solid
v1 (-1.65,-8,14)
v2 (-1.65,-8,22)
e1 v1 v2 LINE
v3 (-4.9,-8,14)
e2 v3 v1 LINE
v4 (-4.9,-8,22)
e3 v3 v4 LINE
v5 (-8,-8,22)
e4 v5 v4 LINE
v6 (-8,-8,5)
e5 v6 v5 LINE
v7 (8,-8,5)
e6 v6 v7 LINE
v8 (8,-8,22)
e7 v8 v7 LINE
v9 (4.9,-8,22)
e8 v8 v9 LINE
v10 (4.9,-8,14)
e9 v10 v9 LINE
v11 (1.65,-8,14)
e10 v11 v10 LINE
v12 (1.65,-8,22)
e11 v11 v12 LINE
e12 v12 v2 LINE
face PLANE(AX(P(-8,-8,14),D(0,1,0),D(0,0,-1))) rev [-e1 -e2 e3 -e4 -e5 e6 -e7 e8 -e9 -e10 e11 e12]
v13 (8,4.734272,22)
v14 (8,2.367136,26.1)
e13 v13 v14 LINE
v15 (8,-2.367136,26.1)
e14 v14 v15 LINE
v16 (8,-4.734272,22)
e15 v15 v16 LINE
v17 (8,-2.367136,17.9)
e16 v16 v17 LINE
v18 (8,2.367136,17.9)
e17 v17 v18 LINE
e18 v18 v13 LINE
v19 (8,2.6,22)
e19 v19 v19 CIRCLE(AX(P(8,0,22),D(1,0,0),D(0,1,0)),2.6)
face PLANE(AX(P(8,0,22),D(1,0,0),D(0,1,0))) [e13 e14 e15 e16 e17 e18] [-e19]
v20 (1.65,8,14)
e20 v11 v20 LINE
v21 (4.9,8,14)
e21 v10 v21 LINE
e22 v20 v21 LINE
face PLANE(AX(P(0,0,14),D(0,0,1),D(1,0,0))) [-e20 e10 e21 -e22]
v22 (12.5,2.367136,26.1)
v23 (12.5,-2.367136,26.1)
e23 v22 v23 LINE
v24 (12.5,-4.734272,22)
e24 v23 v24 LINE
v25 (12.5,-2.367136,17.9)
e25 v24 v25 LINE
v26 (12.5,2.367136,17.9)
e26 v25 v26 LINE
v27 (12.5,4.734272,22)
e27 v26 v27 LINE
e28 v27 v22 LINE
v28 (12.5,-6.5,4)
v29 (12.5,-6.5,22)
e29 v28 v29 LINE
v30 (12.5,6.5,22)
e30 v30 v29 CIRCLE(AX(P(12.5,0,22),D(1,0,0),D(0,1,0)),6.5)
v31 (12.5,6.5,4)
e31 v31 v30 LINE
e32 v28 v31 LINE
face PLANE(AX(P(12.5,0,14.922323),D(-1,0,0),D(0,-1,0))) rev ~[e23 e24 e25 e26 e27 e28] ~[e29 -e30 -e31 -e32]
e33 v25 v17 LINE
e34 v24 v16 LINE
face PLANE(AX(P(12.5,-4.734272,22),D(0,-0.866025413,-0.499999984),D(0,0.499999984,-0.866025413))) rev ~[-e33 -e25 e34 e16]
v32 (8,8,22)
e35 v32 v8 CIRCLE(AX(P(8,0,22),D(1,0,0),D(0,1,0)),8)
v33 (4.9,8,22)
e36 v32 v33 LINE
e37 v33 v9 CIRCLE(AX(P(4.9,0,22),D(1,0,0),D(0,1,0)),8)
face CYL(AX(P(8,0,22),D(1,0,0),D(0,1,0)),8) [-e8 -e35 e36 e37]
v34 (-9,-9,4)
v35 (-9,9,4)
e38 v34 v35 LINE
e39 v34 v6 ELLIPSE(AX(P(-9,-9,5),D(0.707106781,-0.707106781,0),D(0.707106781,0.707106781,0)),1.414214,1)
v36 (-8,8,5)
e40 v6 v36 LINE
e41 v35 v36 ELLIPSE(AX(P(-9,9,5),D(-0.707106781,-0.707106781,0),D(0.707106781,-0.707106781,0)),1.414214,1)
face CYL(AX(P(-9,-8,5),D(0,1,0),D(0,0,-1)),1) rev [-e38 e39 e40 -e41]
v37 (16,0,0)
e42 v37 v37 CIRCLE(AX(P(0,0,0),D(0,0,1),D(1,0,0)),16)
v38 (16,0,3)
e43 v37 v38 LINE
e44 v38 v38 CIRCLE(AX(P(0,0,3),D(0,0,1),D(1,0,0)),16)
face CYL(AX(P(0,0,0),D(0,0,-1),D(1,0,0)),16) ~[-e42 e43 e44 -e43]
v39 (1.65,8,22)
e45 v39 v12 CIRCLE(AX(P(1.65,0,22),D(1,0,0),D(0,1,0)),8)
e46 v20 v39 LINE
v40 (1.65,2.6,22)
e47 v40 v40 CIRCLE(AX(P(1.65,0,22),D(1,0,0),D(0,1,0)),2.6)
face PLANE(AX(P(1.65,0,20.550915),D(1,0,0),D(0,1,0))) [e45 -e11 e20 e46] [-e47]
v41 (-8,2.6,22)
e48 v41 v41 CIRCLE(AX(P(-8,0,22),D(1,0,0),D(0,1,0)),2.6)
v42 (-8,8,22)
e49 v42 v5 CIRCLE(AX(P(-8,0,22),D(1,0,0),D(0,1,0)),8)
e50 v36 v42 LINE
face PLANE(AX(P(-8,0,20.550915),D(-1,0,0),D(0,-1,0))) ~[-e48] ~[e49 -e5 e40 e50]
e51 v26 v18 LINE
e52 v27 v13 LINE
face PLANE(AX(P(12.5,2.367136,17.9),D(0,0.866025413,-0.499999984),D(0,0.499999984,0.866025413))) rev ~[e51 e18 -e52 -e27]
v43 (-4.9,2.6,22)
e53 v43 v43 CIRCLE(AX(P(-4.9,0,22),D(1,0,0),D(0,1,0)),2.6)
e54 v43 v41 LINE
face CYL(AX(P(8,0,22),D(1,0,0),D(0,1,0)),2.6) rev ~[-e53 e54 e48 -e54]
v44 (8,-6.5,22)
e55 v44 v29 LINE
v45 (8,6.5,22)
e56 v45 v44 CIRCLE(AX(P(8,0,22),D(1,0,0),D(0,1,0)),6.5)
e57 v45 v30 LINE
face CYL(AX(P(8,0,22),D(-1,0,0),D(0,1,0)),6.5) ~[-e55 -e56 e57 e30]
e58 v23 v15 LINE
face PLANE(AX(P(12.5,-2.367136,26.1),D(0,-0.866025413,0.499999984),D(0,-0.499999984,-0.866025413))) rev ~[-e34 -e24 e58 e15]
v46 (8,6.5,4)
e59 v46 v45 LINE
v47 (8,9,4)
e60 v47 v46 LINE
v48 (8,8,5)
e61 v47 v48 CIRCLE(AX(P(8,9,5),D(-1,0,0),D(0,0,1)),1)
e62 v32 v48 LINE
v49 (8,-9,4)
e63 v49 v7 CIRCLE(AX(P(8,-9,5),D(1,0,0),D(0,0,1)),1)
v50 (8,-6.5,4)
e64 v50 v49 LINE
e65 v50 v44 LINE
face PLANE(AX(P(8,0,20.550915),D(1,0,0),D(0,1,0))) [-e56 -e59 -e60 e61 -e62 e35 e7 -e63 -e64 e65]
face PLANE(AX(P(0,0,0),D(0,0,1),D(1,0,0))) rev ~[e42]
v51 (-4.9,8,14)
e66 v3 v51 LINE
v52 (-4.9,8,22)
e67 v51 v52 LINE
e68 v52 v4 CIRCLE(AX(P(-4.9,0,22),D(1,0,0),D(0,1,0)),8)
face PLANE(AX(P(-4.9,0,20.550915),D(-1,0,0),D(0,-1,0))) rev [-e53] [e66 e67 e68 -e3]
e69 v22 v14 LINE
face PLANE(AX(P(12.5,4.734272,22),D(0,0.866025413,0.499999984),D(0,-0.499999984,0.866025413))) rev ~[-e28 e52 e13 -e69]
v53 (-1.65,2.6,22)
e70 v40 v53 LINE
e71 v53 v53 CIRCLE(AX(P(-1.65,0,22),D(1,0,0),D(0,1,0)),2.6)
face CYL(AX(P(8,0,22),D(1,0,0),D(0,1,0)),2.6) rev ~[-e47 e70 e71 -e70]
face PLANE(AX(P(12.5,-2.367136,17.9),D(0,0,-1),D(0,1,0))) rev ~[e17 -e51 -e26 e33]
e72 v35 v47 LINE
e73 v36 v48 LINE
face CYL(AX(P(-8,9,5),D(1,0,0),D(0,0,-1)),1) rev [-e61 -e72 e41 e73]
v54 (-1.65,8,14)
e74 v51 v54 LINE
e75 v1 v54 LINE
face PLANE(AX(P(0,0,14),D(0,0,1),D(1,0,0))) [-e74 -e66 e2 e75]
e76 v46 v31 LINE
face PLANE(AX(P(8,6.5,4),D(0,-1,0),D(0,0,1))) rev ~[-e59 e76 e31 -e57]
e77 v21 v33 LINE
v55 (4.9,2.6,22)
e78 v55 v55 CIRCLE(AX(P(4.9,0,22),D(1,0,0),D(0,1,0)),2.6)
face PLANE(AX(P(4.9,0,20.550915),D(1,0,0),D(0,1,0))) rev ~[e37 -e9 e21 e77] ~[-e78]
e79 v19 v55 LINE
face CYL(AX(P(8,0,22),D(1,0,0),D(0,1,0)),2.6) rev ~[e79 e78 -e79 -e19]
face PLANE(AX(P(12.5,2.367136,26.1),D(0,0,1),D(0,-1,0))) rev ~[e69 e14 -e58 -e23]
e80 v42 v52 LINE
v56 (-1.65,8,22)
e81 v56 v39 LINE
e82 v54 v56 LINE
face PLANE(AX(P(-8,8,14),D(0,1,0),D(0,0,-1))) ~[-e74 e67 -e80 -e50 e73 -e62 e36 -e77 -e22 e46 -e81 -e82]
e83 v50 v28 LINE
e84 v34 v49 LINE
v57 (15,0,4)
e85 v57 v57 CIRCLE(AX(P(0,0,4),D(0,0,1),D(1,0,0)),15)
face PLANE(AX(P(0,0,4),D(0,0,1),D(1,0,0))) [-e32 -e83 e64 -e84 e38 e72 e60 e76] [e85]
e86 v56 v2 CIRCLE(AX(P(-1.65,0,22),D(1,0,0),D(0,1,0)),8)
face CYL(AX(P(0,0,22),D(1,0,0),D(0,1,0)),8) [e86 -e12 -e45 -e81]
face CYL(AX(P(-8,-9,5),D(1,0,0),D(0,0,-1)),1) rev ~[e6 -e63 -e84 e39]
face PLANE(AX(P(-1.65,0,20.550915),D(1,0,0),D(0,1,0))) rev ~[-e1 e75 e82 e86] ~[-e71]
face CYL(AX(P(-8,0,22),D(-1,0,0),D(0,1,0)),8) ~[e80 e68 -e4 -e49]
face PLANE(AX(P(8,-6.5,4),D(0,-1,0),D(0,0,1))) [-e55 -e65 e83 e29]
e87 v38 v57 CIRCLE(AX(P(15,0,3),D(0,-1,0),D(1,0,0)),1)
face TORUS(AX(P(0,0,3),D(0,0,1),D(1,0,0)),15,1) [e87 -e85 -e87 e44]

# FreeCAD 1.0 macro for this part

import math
import FreeCAD as App
import Part
import Sketcher
from FreeCAD import Vector
Q = App.Units.Quantity


def edges_at(feature, points):
    """Names of the edges that pass closest to the given points."""
    edges = feature.Shape.Edges
    near = lambda p: min(range(len(edges)), key=lambda i: edges[i].distToShape(Part.Vertex(*p))[0])
    return sorted({f"Edge{near(p) + 1}" for p in points})


def add_polygon(sketch, points):
    """Adds a closed chain of lines whose ends are joined by coincident constraints."""
    first, n = sketch.GeometryCount, len(points)
    for a, b in zip(points, points[1:] + points[:1]):
        sketch.addGeometry(Part.LineSegment(App.Vector(*a, 0), App.Vector(*b, 0)), False)
    for i in range(n):
        sketch.addConstraint(Sketcher.Constraint("Coincident", first + i, 2, first + (i + 1) % n, 1))

doc = App.newDocument("Part")
body = doc.addObject("PartDesign::Body", "Body")

# Sketch on XY plane
sketch1 = body.newObject("Sketcher::SketchObject", "Sketch")
sketch1.AttachmentSupport = (doc.getObject("XY_Plane"), [""])
sketch1.MapMode = "FlatFace"
sketch1.addGeometry(Part.Circle(Vector(0, 0, 0), Vector(0, 0, 1), 16), False)
sketch1.addConstraint([
    Sketcher.Constraint("Coincident", 0, 3, -1, 1),
    Sketcher.Constraint("Diameter", 0, 32.0),
])
pad1 = body.newObject("PartDesign::Pad", "Pad")
pad1.Profile = sketch1
pad1.Length = 4
doc.recompute()

fillet = body.newObject("PartDesign::Fillet", "Fillet")
fillet.Base = (pad1, edges_at(pad1, [(-16, 0, 4)]))
fillet.Radius = 1

# Sketch on XY plane
sketch2 = body.newObject("Sketcher::SketchObject", "Sketch001")
sketch2.AttachmentSupport = (doc.getObject("XY_Plane"), [""])
sketch2.MapMode = "FlatFace"
sketch2.AttachmentOffset = App.Placement(Vector(0, 0, 4), App.Rotation())
add_polygon(sketch2, [(-8, 8), (-8, -8), (8, -8), (8, 8)])  # lines 0-3
sketch2.addConstraint([
    Sketcher.Constraint("Vertical", 0),
    Sketcher.Constraint("Horizontal", 1),
    Sketcher.Constraint("Vertical", 2),
    Sketcher.Constraint("Horizontal", 3),
    Sketcher.Constraint("Symmetric", 0, 2, 2, 2, -1, 1),
    Sketcher.Constraint("Equal", 3, 0),
    Sketcher.Constraint("DistanceX", 1, 1, 1, 2, 16.0),
])
pad2 = body.newObject("PartDesign::Pad", "Pad001")
pad2.Profile = sketch2
pad2.Length = 10
doc.recompute()

fillet2 = body.newObject("PartDesign::Fillet", "Fillet001")
fillet2.Base = (pad2, edges_at(pad2, [(0, -8, 4), (0, 8, 4), (-8, 0, 4)]))
fillet2.Radius = 1

# Sketch on YZ plane
sketch3 = body.newObject("Sketcher::SketchObject", "Sketch002")
sketch3.AttachmentSupport = (doc.getObject("YZ_Plane"), [""])
sketch3.MapMode = "FlatFace"
sketch3.AttachmentOffset = App.Placement(Vector(0, 0, 8), App.Rotation())
sketch3.addGeometry([
    Part.LineSegment(Vector(-8, 14, 0), Vector(8, 14, 0)),
    Part.LineSegment(Vector(8, 14, 0), Vector(8, 22, 0)),
    Part.ArcOfCircle(Part.Circle(Vector(0, 22, 0), Vector(0, 0, 1), 8), math.radians(0), math.radians(180)),
    Part.LineSegment(Vector(-8, 22, 0), Vector(-8, 14, 0)),
], False)
sketch3.addConstraint([
    Sketcher.Constraint("Coincident", 0, 2, 1, 1),
    Sketcher.Constraint("Tangent", 1, 2, 2, 1),
    Sketcher.Constraint("Tangent", 2, 2, 3, 1),
    Sketcher.Constraint("Coincident", 3, 2, 0, 1),
    Sketcher.Constraint("Horizontal", 0),
    Sketcher.Constraint("Vertical", 1),
    Sketcher.Constraint("Vertical", 3),
    Sketcher.Constraint("PointOnObject", 2, 3, -2),
    Sketcher.Constraint("Radius", 2, 8.0),
    Sketcher.Constraint("DistanceY", 1, 1, 1, 2, 8.0),
    Sketcher.Constraint("DistanceY", -1, 1, 2, 3, 22.0),
])
pad3 = body.newObject("PartDesign::Pad", "Pad002")
pad3.Profile = sketch3
pad3.Length = 3.1
pad3.Reversed = True
doc.recompute()

mirrored = body.newObject("PartDesign::Mirrored", "Mirrored")
mirrored.Originals = [pad3]
mirrored.MirrorPlane = (doc.getObject("YZ_Plane"), [""])
body.Tip = mirrored

# Sketch on YZ plane
sketch4 = body.newObject("Sketcher::SketchObject", "Sketch003")
sketch4.AttachmentSupport = (doc.getObject("YZ_Plane"), [""])
sketch4.MapMode = "FlatFace"
sketch4.addGeometry([
    Part.LineSegment(Vector(-8, 14, 0), Vector(8, 14, 0)),
    Part.LineSegment(Vector(8, 14, 0), Vector(8, 22, 0)),
    Part.ArcOfCircle(Part.Circle(Vector(0, 22, 0), Vector(0, 0, 1), 8), math.radians(0), math.radians(180)),
    Part.LineSegment(Vector(-8, 22, 0), Vector(-8, 14, 0)),
], False)
sketch4.addConstraint([
    Sketcher.Constraint("Coincident", 0, 2, 1, 1),
    Sketcher.Constraint("Tangent", 1, 2, 2, 1),
    Sketcher.Constraint("Tangent", 2, 2, 3, 1),
    Sketcher.Constraint("Coincident", 3, 2, 0, 1),
    Sketcher.Constraint("Horizontal", 0),
    Sketcher.Constraint("Vertical", 1),
    Sketcher.Constraint("Vertical", 3),
    Sketcher.Constraint("PointOnObject", 2, 3, -2),
    Sketcher.Constraint("Radius", 2, 8.0),
    Sketcher.Constraint("DistanceY", 1, 1, 1, 2, 8.0),
    Sketcher.Constraint("DistanceY", -1, 1, 2, 3, 22.0),
])
pad4 = body.newObject("PartDesign::Pad", "Pad003")
pad4.Profile = sketch4
pad4.Length = 3.3
pad4.Midplane = True

# Sketch on YZ plane
sketch5 = body.newObject("Sketcher::SketchObject", "Sketch004")
sketch5.AttachmentSupport = (doc.getObject("YZ_Plane"), [""])
sketch5.MapMode = "FlatFace"
sketch5.AttachmentOffset = App.Placement(Vector(0, 0, 8), App.Rotation())
sketch5.addGeometry(Part.Circle(Vector(0, 22, 0), Vector(0, 0, 1), 2.6), False)
sketch5.addConstraint([
    Sketcher.Constraint("PointOnObject", 0, 3, -2),
    Sketcher.Constraint("Diameter", 0, 5.2),
    Sketcher.Constraint("DistanceY", -1, 1, 0, 3, 22.0),
])
pocket1 = body.newObject("PartDesign::Pocket", "Pocket")
pocket1.Profile = sketch5
pocket1.Type = "ThroughAll"

# Sketch on YZ plane
sketch6 = body.newObject("Sketcher::SketchObject", "Sketch005")
sketch6.AttachmentSupport = (doc.getObject("YZ_Plane"), [""])
sketch6.MapMode = "FlatFace"
sketch6.AttachmentOffset = App.Placement(Vector(0, 0, 8), App.Rotation())
sketch6.addGeometry([
    Part.LineSegment(Vector(-6, 22, 0), Vector(-6, 4, 0)),
    Part.LineSegment(Vector(-6, 4, 0), Vector(6, 4, 0)),
    Part.LineSegment(Vector(6, 4, 0), Vector(6, 22, 0)),
    Part.ArcOfCircle(Part.Circle(Vector(0, 22, 0), Vector(0, 0, 1), 6), math.radians(0), math.radians(180)),
], False)
sketch6.addConstraint([
    Sketcher.Constraint("Coincident", 0, 2, 1, 1),
    Sketcher.Constraint("Coincident", 1, 2, 2, 1),
    Sketcher.Constraint("Tangent", 2, 2, 3, 1),
    Sketcher.Constraint("Tangent", 3, 2, 0, 1),
    Sketcher.Constraint("Vertical", 0),
    Sketcher.Constraint("Horizontal", 1),
    Sketcher.Constraint("Vertical", 2),
    Sketcher.Constraint("PointOnObject", 3, 3, -2),
    Sketcher.Constraint("Radius", 3, 6.5),
    Sketcher.Constraint("DistanceY", 0, 2, 0, 1, 18.0),
    Sketcher.Constraint("DistanceY", -1, 1, 3, 3, 22.0),
])
pad5 = body.newObject("PartDesign::Pad", "Pad004")
pad5.Profile = sketch6
pad5.Length = 4.5

# Sketch on YZ plane
sketch7 = body.newObject("Sketcher::SketchObject", "Sketch006")
sketch7.AttachmentSupport = (doc.getObject("YZ_Plane"), [""])
sketch7.MapMode = "FlatFace"
sketch7.AttachmentOffset = App.Placement(Vector(0, 0, 12.5), App.Rotation())
add_polygon(sketch7, [(2.4, 26.1), (-2.4, 26.1), (-4.7, 22), (-2.4, 17.9), (2.4, 17.9), (4.7, 22)])  # lines 0-5
sketch7.addConstraint([
    Sketcher.Constraint("Horizontal", 0),
    Sketcher.Constraint("Horizontal", 3),
    Sketcher.Constraint("Symmetric", 1, 2, 4, 2, -2),
    Sketcher.Constraint("Parallel", 1, 4),
    Sketcher.Constraint("Parallel", 2, 5),
    Sketcher.Constraint("Vertical", 0, 2, 2, 2),
    Sketcher.Constraint("Vertical", 3, 2, 5, 2),
    Sketcher.Constraint("Angle", 1, Q("-119.999999 deg")),
    Sketcher.Constraint("DistanceY", -1, 1, 1, 2, 22.0),
    Sketcher.Constraint("DistanceY", -1, 1, 0, 2, 26.1),
    Sketcher.Constraint("DistanceX", 0, 2, 0, 1, 4.734272),
])
pocket2 = body.newObject("PartDesign::Pocket", "Pocket001")
pocket2.Profile = sketch7
pocket2.Length = 4.5

doc.recompute()
